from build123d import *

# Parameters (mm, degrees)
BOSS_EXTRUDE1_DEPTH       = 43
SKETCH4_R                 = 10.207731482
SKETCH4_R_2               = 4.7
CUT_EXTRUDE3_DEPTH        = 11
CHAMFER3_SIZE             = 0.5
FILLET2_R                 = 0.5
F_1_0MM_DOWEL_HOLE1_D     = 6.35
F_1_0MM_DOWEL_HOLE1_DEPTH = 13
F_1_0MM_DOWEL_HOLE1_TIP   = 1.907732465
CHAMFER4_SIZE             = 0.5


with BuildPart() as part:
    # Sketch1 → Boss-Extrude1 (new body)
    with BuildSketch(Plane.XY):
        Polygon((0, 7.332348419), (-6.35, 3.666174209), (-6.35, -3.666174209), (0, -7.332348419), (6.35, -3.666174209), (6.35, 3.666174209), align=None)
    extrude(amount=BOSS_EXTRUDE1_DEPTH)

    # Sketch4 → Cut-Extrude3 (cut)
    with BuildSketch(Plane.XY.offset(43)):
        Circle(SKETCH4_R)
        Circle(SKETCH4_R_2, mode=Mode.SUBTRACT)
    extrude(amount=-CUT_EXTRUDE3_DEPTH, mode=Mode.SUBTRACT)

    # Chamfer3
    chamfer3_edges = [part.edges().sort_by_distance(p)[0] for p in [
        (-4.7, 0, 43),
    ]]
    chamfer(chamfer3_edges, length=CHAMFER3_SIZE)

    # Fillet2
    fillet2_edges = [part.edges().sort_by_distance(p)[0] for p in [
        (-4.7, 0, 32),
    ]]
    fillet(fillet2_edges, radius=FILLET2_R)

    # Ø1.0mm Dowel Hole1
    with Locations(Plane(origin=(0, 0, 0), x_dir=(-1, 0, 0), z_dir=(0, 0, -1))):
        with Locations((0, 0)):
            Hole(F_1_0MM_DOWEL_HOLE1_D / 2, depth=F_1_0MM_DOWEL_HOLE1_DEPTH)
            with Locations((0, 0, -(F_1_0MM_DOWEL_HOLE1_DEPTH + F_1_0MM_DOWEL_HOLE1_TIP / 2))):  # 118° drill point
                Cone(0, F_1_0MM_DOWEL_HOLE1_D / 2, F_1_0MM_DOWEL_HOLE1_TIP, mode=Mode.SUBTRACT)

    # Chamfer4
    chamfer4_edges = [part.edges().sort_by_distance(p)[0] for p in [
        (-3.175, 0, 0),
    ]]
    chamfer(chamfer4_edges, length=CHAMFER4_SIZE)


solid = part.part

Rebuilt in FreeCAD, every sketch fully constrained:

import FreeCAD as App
import Part
import Sketcher

V = App.Vector
Q = App.Units.Quantity


def edges_at(feature, points):
    """Names of the edges that pass closest to the given points."""
    edges = feature.Shape.Edges
    near = lambda p: min(range(len(edges)), key=lambda i: edges[i].distToShape(Part.Vertex(*p))[0])
    return sorted({f"Edge{near(p) + 1}" for p in points})


def add_polygon(sketch, points):
    """Adds a closed chain of lines whose ends are joined by coincident constraints."""
    first, n = sketch.GeometryCount, len(points)
    for a, b in zip(points, points[1:] + points[:1]):
        sketch.addGeometry(Part.LineSegment(App.Vector(*a, 0), App.Vector(*b, 0)), False)
    for i in range(n):
        sketch.addConstraint(Sketcher.Constraint("Coincident", first + i, 2, first + (i + 1) % n, 1))

doc = App.newDocument("Part")
body = doc.addObject("PartDesign::Body", "Body")

# Sketch on XY plane
sketch1 = doc.addObject("Sketcher::SketchObject", "Sketch")
body.addObject(sketch1)
sketch1.AttachmentSupport = (doc.XY_Plane, [""])
sketch1.MapMode = "FlatFace"
add_polygon(sketch1, [(0, 7), (-6, 4), (-6, -4), (0, -7), (6, -4), (6, 4)])  # lines 0-5
sketch1.addConstraint(Sketcher.Constraint("Vertical", 1))
sketch1.addConstraint(Sketcher.Constraint("Vertical", 4))
sketch1.addConstraint(Sketcher.Constraint("Symmetric", 0, 2, 3, 2, -1, 1))
sketch1.addConstraint(Sketcher.Constraint("Symmetric", 2, 2, 5, 2, -1, 1))
sketch1.addConstraint(Sketcher.Constraint("PointOnObject", 2, 2, -2))
sketch1.addConstraint(Sketcher.Constraint("Parallel", 2, 5))
sketch1.addConstraint(Sketcher.Constraint("Horizontal", 1, 2, 3, 2))
sketch1.addConstraint(Sketcher.Constraint("Angle", 0, Q("-150 deg")))
sketch1.addConstraint(Sketcher.Constraint("DistanceX", 1, 2, 3, 2, Q("12.7 mm")))
sketch1.addConstraint(Sketcher.Constraint("DistanceY", 1, 2, 1, 1, Q("7.332348 mm")))
pad1 = doc.addObject("PartDesign::Pad", "Pad")
body.addObject(pad1)
pad1.Profile = sketch1
pad1.Length = 43

# Sketch on XY plane
sketch2 = doc.addObject("Sketcher::SketchObject", "Sketch001")
body.addObject(sketch2)
sketch2.AttachmentSupport = (doc.XY_Plane, [""])
sketch2.MapMode = "FlatFace"
sketch2.AttachmentOffset = App.Placement(V(0, 0, 43), App.Rotation())
sketch2.addGeometry(Part.Circle(V(0, 0, 0), V(0, 0, 1), 10.2), False)
sketch2.addGeometry(Part.Circle(V(0, 0, 0), V(0, 0, 1), 4.7), False)
sketch2.addConstraint(Sketcher.Constraint("Coincident", 0, 3, -1, 1))
sketch2.addConstraint(Sketcher.Constraint("Coincident", 1, 3, -1, 1))
sketch2.addConstraint(Sketcher.Constraint("Diameter", 1, Q("9.4 mm")))
sketch2.addConstraint(Sketcher.Constraint("Diameter", 0, Q("20.415463 mm")))
pocket1 = doc.addObject("PartDesign::Pocket", "Pocket")
body.addObject(pocket1)
pocket1.Profile = sketch2
pocket1.Length = 11
doc.recompute()

chamfer = doc.addObject("PartDesign::Chamfer", "Chamfer")
body.addObject(chamfer)
chamfer.Base = (pocket1, edges_at(pocket1, [(-4.7, 0, 43)]))
chamfer.Size = 0.5
doc.recompute()

fillet = doc.addObject("PartDesign::Fillet", "Fillet")
body.addObject(fillet)
fillet.Base = (chamfer, edges_at(chamfer, [(-4.7, 0, 32)]))
fillet.Radius = 0.5

# Sketch on XY plane
sketch3 = doc.addObject("Sketcher::SketchObject", "Sketch002")
body.addObject(sketch3)
sketch3.AttachmentSupport = (doc.XY_Plane, [""])
sketch3.MapMode = "FlatFace"
sketch3.addGeometry(Part.Circle(V(0, 0, 0), V(0, 0, 1), 3.2), False)
sketch3.addConstraint(Sketcher.Constraint("Coincident", 0, 3, -1, 1))
sketch3.addConstraint(Sketcher.Constraint("Diameter", 0, Q("6.35 mm")))
doc.recompute()
hole = doc.addObject("PartDesign::Hole", "Hole")
body.addObject(hole)
hole.Profile = sketch3
hole.ThreadType = "None"
hole.Diameter = 6.35
hole.DepthType = "Dimension"
hole.Depth = 13
hole.DrillPoint = "Angled"
hole.DrillPointAngle = 118
hole.Reversed = True
doc.recompute()

chamfer2 = doc.addObject("PartDesign::Chamfer", "Chamfer001")
body.addObject(chamfer2)
chamfer2.Base = (hole, edges_at(hole, [(-3.175, 0, 0)]))
chamfer2.Size = 0.5

doc.recompute()
